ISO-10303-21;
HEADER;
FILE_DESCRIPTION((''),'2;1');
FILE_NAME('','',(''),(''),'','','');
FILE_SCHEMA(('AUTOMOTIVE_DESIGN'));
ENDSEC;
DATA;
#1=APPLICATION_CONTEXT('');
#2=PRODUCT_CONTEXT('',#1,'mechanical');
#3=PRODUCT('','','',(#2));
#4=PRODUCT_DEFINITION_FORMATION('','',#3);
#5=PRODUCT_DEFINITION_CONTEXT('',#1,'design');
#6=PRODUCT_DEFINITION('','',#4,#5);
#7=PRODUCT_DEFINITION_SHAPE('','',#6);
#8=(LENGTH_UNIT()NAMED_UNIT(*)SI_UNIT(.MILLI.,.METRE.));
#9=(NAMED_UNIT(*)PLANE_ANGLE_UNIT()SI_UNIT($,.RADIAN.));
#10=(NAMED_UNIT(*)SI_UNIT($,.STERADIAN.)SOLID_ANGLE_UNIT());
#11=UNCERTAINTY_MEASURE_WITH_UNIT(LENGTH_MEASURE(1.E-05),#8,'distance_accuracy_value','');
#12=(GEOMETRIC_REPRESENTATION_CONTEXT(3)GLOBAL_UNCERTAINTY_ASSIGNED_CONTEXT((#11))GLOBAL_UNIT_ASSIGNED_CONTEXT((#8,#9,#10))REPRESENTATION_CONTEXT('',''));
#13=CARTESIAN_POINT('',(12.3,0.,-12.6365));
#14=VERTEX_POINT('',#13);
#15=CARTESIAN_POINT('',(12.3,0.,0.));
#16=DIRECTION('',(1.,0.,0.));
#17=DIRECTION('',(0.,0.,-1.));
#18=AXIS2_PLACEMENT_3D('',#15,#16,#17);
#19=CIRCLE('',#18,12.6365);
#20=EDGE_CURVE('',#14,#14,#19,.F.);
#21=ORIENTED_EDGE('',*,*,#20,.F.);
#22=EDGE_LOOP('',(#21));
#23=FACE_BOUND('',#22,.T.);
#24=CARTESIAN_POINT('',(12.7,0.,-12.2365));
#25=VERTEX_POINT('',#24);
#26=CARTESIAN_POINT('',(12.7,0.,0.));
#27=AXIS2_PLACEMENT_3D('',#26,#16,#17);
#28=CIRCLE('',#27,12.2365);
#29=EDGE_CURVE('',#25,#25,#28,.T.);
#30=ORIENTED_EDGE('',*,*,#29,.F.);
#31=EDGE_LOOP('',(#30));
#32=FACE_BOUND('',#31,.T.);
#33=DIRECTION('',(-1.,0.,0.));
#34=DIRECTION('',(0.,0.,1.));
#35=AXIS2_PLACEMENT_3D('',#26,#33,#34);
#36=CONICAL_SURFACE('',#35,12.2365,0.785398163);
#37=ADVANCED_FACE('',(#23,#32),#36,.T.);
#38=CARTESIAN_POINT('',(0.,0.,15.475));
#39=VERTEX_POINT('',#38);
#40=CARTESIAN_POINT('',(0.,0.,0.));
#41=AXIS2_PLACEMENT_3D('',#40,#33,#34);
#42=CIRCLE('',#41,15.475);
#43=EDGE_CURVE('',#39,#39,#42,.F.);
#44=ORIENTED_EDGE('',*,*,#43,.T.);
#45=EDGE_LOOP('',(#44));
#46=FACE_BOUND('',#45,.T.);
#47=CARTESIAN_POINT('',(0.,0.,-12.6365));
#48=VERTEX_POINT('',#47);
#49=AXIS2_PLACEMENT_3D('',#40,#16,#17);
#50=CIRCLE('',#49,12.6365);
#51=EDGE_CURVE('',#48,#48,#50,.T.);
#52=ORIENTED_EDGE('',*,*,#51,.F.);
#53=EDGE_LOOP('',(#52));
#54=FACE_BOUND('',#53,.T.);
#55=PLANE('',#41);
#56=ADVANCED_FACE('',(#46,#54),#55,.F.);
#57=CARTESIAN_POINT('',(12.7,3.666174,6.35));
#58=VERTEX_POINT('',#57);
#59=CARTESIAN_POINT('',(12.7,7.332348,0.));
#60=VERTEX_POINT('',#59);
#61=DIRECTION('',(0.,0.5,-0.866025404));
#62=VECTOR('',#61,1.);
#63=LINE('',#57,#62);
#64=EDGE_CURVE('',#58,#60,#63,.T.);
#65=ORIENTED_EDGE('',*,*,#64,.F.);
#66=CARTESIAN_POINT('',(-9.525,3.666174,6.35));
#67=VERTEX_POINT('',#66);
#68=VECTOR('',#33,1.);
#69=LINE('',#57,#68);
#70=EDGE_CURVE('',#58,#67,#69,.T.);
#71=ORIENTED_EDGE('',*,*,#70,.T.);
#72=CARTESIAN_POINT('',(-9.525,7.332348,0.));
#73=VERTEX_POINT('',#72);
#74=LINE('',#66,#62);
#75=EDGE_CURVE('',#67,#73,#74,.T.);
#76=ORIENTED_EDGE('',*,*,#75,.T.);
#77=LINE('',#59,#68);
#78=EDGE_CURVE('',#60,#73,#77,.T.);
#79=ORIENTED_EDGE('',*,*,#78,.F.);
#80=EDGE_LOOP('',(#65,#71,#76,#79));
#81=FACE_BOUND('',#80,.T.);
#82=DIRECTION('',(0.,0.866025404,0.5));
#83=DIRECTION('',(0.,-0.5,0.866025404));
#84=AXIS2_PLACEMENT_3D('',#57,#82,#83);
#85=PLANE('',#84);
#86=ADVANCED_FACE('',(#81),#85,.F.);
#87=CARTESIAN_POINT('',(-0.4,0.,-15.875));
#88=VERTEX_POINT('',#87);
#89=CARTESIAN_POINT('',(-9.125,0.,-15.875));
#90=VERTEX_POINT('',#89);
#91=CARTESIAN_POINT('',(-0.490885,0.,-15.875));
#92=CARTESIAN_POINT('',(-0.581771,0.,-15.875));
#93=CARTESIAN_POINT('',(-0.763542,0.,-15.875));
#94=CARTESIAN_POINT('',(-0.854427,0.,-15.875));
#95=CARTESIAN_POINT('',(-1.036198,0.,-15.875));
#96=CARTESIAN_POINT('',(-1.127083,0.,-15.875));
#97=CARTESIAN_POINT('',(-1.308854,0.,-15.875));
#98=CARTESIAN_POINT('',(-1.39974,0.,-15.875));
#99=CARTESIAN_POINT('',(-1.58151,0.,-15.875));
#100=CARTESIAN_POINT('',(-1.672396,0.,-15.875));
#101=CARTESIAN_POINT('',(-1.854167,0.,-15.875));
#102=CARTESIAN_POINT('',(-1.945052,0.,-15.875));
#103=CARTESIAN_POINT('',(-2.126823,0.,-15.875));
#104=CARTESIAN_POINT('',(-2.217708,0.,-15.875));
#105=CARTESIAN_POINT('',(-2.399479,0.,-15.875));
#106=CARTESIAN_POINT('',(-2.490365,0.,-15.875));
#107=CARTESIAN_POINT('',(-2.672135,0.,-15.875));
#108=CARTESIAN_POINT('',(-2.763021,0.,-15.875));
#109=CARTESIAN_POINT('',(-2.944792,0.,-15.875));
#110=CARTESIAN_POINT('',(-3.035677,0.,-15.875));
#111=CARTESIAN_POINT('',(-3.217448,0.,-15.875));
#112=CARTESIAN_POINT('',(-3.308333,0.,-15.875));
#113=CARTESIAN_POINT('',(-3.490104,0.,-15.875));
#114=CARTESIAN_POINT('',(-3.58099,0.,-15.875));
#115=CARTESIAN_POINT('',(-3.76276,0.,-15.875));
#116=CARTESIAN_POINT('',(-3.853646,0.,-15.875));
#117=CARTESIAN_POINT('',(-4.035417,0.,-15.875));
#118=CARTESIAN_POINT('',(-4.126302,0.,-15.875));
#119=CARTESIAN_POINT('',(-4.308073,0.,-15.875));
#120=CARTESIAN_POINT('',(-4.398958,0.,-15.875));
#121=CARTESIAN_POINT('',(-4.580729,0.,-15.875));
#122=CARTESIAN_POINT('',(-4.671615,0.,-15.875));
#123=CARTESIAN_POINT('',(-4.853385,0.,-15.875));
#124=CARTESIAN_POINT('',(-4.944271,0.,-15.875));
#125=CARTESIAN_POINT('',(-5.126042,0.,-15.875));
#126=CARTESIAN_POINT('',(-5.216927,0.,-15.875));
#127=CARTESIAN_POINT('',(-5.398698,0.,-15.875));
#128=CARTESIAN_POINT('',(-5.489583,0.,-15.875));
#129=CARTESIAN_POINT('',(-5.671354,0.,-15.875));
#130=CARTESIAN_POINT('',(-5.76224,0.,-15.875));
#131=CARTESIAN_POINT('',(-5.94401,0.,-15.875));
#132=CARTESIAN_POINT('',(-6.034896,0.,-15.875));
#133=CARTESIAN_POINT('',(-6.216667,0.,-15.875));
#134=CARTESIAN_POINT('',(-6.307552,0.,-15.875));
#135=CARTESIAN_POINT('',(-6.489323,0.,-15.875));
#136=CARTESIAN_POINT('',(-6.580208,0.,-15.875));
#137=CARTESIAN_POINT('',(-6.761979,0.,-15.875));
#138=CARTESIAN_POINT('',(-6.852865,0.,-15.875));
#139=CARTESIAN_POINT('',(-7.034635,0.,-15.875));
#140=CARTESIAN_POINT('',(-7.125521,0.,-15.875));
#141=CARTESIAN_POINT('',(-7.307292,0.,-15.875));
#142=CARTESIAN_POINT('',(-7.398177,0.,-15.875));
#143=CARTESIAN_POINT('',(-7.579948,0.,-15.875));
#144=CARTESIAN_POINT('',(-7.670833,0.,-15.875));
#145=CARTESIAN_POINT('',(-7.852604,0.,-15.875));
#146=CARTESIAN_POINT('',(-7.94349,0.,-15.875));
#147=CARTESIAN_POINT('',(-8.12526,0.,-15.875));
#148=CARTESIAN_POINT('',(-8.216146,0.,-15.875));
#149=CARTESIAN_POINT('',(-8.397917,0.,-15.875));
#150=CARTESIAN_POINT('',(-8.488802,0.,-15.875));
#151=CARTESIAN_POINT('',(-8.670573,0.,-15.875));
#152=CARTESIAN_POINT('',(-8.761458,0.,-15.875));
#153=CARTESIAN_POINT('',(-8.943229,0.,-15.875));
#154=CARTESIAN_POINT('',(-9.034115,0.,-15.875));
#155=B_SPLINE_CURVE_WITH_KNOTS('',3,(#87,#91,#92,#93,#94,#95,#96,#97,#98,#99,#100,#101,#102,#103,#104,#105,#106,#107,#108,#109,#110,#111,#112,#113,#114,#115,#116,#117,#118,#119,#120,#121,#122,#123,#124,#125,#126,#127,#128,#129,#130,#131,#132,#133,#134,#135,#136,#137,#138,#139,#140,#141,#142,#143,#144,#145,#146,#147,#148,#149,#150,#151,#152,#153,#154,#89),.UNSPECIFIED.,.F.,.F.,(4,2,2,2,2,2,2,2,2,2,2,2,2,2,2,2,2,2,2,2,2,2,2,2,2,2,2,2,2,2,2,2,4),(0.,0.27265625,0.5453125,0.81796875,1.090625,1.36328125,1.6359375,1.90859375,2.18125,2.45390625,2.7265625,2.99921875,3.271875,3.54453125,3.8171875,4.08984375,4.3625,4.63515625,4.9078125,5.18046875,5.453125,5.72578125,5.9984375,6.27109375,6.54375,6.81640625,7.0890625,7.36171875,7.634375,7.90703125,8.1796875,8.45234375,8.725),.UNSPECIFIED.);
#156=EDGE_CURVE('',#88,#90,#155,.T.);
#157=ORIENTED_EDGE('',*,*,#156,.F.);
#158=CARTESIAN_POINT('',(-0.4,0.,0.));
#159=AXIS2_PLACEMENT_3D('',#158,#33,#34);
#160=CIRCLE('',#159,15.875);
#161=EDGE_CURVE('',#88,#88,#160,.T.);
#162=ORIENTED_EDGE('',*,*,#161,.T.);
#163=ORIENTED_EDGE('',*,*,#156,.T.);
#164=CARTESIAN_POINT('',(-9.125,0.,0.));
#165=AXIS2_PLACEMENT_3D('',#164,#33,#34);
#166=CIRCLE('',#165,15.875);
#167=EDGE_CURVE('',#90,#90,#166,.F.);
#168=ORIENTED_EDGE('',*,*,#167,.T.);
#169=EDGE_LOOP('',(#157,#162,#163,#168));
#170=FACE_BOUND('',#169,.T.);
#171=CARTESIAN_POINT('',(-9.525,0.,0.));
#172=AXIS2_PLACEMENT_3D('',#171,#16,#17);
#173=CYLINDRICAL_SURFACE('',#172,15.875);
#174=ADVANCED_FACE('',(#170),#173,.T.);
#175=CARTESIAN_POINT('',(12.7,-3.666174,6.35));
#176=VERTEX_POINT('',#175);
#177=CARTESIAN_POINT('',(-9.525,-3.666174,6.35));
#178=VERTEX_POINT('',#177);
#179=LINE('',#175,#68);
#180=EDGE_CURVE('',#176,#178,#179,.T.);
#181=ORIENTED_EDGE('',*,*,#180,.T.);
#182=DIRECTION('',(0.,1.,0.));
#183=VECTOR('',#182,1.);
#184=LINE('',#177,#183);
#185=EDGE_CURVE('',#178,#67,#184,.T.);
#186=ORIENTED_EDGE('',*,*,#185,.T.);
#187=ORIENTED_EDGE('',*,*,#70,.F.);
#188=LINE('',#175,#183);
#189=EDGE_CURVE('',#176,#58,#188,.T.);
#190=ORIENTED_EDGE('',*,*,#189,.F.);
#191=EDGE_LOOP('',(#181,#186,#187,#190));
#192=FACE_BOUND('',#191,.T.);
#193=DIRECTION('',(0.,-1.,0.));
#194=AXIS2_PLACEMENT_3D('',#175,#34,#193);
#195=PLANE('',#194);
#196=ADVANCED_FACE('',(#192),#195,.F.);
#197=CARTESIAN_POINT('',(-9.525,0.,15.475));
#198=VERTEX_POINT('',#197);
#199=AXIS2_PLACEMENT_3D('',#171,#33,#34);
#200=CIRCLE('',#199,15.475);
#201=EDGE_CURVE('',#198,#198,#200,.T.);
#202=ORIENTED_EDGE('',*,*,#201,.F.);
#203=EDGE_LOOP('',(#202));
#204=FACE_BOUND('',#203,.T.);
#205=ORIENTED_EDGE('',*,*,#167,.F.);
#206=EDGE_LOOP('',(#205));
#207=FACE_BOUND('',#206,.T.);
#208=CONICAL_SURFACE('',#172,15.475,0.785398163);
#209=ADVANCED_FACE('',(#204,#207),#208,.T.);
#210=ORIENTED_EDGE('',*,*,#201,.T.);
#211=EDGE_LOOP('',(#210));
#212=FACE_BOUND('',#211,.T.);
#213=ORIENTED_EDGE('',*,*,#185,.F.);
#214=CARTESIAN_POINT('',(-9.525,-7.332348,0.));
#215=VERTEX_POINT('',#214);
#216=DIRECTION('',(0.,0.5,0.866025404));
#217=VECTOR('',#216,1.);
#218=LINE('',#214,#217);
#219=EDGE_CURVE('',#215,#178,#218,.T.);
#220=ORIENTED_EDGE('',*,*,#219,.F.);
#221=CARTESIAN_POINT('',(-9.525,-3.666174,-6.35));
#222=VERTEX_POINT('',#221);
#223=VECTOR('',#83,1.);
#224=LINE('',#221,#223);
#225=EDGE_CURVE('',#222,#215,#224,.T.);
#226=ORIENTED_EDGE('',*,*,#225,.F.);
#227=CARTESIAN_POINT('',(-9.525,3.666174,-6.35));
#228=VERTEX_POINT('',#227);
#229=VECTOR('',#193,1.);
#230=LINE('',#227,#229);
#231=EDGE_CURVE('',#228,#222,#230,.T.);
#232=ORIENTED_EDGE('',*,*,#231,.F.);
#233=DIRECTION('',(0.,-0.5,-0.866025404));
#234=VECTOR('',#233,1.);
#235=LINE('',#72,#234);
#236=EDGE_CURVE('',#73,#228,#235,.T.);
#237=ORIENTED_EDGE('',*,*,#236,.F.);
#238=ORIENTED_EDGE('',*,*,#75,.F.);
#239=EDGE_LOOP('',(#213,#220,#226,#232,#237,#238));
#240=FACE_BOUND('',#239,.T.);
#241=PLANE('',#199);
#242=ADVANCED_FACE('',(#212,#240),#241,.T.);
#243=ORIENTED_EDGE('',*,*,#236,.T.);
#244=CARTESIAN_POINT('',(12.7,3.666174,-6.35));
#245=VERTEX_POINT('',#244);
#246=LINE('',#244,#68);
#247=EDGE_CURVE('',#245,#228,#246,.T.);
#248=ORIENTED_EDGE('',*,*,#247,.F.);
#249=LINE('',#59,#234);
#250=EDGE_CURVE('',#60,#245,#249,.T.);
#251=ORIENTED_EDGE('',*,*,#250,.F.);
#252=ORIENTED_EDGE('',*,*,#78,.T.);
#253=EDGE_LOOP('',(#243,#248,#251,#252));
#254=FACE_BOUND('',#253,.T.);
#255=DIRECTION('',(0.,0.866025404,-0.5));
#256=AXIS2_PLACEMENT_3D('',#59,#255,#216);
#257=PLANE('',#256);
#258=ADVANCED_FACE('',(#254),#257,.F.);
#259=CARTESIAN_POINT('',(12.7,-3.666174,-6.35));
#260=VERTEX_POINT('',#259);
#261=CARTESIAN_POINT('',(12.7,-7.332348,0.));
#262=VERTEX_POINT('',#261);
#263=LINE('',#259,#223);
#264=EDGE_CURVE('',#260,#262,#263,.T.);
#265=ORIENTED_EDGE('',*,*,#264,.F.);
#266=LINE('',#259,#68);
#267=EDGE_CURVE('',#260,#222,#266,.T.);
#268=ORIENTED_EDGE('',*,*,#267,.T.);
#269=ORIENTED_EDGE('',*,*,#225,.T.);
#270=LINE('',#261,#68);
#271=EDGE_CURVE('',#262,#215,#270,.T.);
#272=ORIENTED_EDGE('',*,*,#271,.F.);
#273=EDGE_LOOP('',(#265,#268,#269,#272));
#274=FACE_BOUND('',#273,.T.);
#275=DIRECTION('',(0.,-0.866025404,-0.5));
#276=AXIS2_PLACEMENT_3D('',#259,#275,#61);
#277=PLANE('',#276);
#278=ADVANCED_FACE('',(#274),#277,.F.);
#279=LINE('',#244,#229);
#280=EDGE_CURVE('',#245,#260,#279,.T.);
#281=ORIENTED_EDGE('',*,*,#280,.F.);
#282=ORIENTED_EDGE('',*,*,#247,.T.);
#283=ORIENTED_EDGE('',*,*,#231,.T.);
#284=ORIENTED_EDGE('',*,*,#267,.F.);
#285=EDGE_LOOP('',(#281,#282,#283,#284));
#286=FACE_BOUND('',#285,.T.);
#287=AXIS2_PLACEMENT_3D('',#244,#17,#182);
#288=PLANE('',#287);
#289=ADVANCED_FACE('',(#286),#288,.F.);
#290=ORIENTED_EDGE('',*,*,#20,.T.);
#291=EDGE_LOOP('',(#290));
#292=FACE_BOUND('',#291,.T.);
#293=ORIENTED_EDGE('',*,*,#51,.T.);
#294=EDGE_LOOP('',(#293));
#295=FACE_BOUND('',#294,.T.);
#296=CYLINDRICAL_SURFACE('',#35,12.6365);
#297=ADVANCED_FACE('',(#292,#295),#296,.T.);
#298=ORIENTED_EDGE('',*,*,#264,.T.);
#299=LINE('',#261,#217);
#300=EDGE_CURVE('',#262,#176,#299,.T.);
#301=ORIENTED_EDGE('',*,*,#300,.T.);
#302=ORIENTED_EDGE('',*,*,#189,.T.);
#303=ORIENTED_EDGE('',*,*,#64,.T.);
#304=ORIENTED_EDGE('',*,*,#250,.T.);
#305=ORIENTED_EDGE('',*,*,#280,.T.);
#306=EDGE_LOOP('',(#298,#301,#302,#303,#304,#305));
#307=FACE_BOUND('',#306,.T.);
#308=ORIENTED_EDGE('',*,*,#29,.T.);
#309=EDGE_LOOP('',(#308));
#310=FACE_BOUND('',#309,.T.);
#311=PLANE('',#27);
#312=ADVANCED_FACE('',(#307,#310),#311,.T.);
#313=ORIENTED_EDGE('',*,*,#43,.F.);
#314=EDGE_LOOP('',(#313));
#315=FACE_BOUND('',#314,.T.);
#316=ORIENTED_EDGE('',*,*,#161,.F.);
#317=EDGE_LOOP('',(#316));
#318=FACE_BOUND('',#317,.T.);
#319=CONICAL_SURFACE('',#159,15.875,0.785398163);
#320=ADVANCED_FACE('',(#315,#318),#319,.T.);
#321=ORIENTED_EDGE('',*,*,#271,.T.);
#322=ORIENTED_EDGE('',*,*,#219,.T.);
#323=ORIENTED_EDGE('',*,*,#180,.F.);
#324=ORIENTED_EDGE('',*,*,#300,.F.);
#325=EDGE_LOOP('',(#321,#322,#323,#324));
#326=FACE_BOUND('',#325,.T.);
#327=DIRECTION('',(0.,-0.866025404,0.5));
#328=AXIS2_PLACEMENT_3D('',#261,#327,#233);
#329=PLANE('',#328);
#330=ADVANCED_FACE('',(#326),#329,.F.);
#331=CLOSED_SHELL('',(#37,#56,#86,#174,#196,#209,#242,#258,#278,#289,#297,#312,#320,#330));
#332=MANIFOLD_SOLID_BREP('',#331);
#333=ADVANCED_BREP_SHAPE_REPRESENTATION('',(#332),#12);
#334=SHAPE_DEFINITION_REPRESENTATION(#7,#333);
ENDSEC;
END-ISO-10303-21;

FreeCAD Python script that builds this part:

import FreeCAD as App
import Part
import Sketcher
from FreeCAD import Vector
Q = App.Units.Quantity


def edges_at(feature, points):
    """Names of the edges that pass closest to the given points."""
    edges = feature.Shape.Edges
    near = lambda p: min(range(len(edges)), key=lambda i: edges[i].distToShape(Part.Vertex(*p))[0])
    return sorted({f"Edge{near(p) + 1}" for p in points})

doc = App.newDocument("Part")
body = doc.addObject("PartDesign::Body", "Body")

# Sketch on YZ plane
sketch1 = body.newObject("Sketcher::SketchObject", "Sketch")
sketch1.AttachmentSupport = (doc.getObject("YZ_Plane"), [""])
sketch1.MapMode = "FlatFace"
sketch1.addGeometry(Part.Circle(Vector(0, 0, 0), Vector(0, 0, 1), 13), False)
sketch1.addConstraint(Sketcher.Constraint("Coincident", 0, 3, -1, 1))
sketch1.addConstraint(Sketcher.Constraint("Diameter", 0, Q("0.995 in")))
pad1 = body.newObject("PartDesign::Pad", "Pad")
pad1.Profile = sketch1
pad1.Length = Q("0.5 in")

# Sketch on YZ plane
sketch2 = body.newObject("Sketcher::SketchObject", "Sketch001")
sketch2.AttachmentSupport = (doc.getObject("YZ_Plane"), [""])
sketch2.MapMode = "FlatFace"
sketch2.addGeometry(Part.Circle(Vector(0, 0, 0), Vector(0, 0, 1), 16), False)
sketch2.addConstraint(Sketcher.Constraint("Coincident", 0, 3, -1, 1))
sketch2.addConstraint(Sketcher.Constraint("Diameter", 0, Q("1.25 in")))
pad2 = body.newObject("PartDesign::Pad", "Pad001")
pad2.Profile = sketch2
pad2.Length = Q("0.375 in")
pad2.Reversed = True
doc.recompute()

chamfer = body.newObject("PartDesign::Chamfer", "Chamfer")
chamfer.Base = (pad2, edges_at(pad2, [(12.7, 0, 12.636), (0, 0, 15.875), (-9.525, 0, 15.875)]))
chamfer.Size = 0.4

# Sketch on YZ plane
sketch3 = body.newObject("Sketcher::SketchObject", "Sketch002")
sketch3.AttachmentSupport = (doc.getObject("YZ_Plane"), [""])
sketch3.MapMode = "FlatFace"
sketch3.AttachmentOffset = App.Placement(Vector(0, 0, -0.375 * 25.4), App.Rotation())
sketch3.addGeometry(Part.LineSegment(Vector(7, 0, 0), Vector(4, -6, 0)), False)
sketch3.addGeometry(Part.LineSegment(Vector(4, -6, 0), Vector(-4, -6, 0)), False)
sketch3.addGeometry(Part.LineSegment(Vector(-4, -6, 0), Vector(-7, 0, 0)), False)
sketch3.addGeometry(Part.LineSegment(Vector(-7, 0, 0), Vector(-4, 6, 0)), False)
sketch3.addGeometry(Part.LineSegment(Vector(-4, 6, 0), Vector(4, 6, 0)), False)
sketch3.addGeometry(Part.LineSegment(Vector(4, 6, 0), Vector(7, 0, 0)), False)
sketch3.addConstraint(Sketcher.Constraint("Coincident", 0, 2, 1, 1))
sketch3.addConstraint(Sketcher.Constraint("Coincident", 1, 2, 2, 1))
sketch3.addConstraint(Sketcher.Constraint("Coincident", 2, 2, 3, 1))
sketch3.addConstraint(Sketcher.Constraint("Coincident", 3, 2, 4, 1))
sketch3.addConstraint(Sketcher.Constraint("Coincident", 4, 2, 5, 1))
sketch3.addConstraint(Sketcher.Constraint("Coincident", 5, 2, 0, 1))
sketch3.addConstraint(Sketcher.Constraint("Horizontal", 1))
sketch3.addConstraint(Sketcher.Constraint("Horizontal", 4))
sketch3.addConstraint(Sketcher.Constraint("Symmetric", 0, 2, 3, 2, -1, 1))
sketch3.addConstraint(Sketcher.Constraint("Symmetric", 2, 2, 5, 2, -1, 1))
sketch3.addConstraint(Sketcher.Constraint("PointOnObject", 2, 2, -1))
sketch3.addConstraint(Sketcher.Constraint("Parallel", 2, 5))
sketch3.addConstraint(Sketcher.Constraint("Vertical", 1, 2, 3, 2))
sketch3.addConstraint(Sketcher.Constraint("Angle", 0, Q("-120 deg")))
sketch3.addConstraint(Sketcher.Constraint("DistanceY", 1, 2, 3, 2, Q("0.5 in")))
sketch3.addConstraint(Sketcher.Constraint("DistanceX", 1, 2, 1, 1, 7.332348))
pocket1 = body.newObject("PartDesign::Pocket", "Pocket")
pocket1.Profile = sketch3
pocket1.Type = "ThroughAll"
pocket1.Reversed = True

doc.recompute()
